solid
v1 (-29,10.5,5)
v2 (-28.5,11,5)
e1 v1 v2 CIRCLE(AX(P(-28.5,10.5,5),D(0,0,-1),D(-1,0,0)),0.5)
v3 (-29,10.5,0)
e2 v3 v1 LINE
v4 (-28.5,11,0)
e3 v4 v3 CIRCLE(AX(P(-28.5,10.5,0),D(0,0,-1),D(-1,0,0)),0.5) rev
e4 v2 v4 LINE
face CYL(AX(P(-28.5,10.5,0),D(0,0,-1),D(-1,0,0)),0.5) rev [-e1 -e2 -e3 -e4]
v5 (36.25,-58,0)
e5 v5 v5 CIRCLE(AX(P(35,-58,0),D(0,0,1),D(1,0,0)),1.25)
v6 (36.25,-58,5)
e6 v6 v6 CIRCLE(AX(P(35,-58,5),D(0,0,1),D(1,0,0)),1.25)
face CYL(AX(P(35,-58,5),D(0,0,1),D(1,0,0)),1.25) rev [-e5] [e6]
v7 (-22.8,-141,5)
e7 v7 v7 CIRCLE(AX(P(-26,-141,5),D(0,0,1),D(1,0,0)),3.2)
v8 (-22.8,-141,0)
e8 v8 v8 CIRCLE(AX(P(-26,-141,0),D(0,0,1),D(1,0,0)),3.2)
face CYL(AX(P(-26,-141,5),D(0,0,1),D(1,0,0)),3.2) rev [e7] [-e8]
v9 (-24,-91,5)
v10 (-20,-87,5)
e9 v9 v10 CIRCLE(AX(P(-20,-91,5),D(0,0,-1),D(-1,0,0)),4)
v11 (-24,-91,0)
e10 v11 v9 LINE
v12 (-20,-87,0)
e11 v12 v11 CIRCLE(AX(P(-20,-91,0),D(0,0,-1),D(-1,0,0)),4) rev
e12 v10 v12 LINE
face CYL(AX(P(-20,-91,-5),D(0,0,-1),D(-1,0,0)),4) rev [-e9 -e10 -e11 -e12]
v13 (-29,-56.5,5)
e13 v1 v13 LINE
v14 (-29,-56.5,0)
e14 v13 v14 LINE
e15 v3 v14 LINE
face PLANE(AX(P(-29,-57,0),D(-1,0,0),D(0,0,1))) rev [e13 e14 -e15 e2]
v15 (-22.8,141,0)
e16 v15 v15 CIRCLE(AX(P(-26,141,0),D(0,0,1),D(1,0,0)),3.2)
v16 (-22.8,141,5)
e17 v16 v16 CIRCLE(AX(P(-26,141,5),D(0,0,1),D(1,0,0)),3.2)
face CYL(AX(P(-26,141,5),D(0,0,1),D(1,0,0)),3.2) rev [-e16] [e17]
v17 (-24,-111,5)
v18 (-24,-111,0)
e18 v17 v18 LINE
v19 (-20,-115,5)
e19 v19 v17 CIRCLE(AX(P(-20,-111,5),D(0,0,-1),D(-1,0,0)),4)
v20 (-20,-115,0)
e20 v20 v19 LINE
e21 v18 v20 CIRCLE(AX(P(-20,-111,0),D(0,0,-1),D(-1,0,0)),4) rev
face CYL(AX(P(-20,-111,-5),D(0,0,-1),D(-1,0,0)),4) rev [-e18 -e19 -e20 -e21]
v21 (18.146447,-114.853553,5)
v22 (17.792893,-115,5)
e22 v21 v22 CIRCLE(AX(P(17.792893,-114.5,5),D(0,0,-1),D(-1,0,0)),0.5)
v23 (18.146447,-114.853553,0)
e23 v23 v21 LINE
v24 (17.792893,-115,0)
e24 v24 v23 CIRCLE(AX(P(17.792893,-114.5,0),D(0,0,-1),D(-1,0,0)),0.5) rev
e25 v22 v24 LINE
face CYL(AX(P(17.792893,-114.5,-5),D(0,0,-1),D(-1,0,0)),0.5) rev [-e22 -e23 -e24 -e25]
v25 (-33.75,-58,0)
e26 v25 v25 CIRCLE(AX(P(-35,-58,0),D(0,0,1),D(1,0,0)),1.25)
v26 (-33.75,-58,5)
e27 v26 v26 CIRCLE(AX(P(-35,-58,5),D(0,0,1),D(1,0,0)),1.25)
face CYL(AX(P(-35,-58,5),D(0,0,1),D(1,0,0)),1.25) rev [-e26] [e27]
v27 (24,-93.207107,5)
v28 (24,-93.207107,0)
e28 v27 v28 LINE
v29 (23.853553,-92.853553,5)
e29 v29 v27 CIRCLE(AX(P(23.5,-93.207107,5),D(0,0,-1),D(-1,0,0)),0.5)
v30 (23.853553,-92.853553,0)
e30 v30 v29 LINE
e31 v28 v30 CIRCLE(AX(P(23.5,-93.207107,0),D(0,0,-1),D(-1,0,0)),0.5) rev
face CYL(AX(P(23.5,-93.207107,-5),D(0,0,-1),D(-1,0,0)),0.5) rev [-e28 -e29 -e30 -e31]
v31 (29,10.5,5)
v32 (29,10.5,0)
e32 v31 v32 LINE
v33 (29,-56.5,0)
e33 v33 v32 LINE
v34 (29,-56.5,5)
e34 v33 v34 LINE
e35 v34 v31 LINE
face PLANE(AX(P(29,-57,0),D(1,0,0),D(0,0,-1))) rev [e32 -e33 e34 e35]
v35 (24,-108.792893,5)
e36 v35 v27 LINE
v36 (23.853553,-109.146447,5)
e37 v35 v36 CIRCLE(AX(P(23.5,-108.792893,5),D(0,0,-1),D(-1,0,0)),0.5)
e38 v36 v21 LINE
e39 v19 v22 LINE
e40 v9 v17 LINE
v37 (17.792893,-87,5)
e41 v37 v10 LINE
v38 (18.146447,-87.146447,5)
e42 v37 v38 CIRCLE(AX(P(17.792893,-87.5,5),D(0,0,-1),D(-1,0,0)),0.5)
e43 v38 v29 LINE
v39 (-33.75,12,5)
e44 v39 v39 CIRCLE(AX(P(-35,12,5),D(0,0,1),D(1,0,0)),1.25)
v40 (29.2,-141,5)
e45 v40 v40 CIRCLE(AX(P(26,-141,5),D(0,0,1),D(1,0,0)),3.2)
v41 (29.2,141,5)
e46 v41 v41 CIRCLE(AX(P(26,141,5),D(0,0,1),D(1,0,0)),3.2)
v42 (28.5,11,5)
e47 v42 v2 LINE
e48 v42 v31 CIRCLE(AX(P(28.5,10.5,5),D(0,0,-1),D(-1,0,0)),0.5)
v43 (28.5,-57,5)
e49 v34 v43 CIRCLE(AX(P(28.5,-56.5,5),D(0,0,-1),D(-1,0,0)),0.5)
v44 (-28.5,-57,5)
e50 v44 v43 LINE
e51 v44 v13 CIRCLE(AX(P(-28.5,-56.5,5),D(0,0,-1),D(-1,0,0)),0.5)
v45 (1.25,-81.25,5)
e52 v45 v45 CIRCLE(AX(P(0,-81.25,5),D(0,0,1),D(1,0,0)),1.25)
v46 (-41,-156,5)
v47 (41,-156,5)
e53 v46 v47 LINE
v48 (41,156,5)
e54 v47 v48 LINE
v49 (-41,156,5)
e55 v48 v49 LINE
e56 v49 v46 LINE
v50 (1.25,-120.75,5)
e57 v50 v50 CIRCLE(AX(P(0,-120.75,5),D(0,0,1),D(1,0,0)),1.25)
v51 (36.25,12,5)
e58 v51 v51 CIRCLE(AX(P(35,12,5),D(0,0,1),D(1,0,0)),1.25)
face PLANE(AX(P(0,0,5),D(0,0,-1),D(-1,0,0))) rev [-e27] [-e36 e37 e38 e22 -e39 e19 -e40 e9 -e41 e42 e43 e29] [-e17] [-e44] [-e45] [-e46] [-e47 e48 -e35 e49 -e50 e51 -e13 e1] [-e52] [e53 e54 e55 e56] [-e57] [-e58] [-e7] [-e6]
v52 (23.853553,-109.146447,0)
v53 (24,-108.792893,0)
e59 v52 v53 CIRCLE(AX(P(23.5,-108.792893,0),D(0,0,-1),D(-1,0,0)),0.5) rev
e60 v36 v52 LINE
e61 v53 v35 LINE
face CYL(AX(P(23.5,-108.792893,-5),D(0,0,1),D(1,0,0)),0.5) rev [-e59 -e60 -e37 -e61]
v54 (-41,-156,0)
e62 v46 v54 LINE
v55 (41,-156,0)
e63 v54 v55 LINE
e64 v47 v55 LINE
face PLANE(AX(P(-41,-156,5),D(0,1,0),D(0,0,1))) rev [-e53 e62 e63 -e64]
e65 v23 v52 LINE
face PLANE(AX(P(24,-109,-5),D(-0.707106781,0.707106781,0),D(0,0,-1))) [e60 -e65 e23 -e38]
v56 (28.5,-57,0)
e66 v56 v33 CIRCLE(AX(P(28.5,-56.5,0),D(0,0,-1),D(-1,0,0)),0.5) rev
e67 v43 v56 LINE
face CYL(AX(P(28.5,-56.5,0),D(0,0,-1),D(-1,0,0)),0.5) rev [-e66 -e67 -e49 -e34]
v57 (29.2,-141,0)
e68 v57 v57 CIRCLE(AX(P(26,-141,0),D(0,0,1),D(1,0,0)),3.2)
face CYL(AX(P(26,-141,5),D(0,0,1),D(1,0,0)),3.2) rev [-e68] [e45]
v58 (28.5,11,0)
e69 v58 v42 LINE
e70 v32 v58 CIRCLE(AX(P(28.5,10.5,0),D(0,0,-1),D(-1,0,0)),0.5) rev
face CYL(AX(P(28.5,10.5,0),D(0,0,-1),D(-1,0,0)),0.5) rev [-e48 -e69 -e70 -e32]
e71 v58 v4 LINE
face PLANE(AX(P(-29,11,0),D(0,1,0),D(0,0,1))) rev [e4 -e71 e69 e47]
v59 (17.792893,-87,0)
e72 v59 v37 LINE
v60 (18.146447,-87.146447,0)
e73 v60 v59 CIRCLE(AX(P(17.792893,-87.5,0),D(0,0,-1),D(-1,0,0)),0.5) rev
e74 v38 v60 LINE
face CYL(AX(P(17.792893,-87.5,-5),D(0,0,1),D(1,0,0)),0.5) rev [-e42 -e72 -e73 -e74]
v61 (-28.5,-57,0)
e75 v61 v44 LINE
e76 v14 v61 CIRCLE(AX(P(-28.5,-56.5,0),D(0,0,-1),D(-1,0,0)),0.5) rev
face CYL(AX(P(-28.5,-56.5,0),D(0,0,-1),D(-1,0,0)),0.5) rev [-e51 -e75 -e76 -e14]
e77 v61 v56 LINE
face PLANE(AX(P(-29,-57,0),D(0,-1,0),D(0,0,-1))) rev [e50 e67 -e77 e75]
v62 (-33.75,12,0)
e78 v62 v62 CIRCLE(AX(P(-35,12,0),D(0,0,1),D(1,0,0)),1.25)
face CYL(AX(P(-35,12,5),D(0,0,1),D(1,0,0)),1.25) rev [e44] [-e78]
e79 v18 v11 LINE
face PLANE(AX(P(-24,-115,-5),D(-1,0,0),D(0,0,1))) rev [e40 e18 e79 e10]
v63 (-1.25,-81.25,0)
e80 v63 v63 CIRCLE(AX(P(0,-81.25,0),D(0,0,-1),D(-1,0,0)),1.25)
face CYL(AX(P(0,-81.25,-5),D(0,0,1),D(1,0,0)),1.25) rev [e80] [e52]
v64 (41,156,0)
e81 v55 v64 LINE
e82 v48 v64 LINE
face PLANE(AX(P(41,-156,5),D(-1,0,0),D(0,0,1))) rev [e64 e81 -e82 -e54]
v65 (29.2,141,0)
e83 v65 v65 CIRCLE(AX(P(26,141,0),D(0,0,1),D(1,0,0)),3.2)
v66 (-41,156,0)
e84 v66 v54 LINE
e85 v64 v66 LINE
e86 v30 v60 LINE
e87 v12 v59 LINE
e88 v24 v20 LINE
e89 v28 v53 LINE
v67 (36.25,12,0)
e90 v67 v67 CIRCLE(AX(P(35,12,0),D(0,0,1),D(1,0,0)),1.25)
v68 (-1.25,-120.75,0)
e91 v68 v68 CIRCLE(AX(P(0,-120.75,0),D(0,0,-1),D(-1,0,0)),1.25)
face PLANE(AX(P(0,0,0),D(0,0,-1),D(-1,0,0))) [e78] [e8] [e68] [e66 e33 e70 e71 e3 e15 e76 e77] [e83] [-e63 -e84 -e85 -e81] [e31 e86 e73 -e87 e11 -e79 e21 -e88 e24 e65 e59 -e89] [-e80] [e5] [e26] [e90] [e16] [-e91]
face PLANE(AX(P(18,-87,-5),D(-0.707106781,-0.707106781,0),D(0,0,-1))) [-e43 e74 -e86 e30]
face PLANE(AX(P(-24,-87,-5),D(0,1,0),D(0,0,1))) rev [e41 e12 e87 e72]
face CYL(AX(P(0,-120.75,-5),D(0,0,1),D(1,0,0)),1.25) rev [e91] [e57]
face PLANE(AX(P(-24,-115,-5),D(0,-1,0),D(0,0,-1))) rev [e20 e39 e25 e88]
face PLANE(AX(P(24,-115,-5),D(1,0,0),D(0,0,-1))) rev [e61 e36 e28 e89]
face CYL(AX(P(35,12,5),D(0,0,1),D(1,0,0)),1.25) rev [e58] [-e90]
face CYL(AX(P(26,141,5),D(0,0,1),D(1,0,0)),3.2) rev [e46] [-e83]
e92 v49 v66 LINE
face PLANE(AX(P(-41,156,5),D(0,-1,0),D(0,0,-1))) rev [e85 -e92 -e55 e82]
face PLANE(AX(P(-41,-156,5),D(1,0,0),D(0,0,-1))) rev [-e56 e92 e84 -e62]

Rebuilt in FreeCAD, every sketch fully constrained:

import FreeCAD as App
import Part
import Sketcher

V = App.Vector


def edges_at(feature, points):
    """Names of the edges that pass closest to the given points."""
    edges = feature.Shape.Edges
    near = lambda p: min(range(len(edges)), key=lambda i: edges[i].distToShape(Part.Vertex(*p))[0])
    return sorted({f"Edge{near(p) + 1}" for p in points})


def add_polygon(sketch, points):
    """Adds a closed chain of lines whose ends are joined by coincident constraints."""
    first, n = sketch.GeometryCount, len(points)
    for a, b in zip(points, points[1:] + points[:1]):
        sketch.addGeometry(Part.LineSegment(App.Vector(*a, 0), App.Vector(*b, 0)), False)
    for i in range(n):
        sketch.addConstraint(Sketcher.Constraint("Coincident", first + i, 2, first + (i + 1) % n, 1))

doc = App.newDocument("Part")
body = doc.addObject("PartDesign::Body", "Body")

sketch1 = body.newObject("Sketcher::SketchObject", "Sketch")
sketch1.AttachmentSupport = (doc.getObject("XY_Plane"), [""])
sketch1.MapMode = "FlatFace"
add_polygon(sketch1, [(-41, 156), (-41, -156), (41, -156), (41, 156)])
sketch1.addConstraint(Sketcher.Constraint("Vertical", 0))
sketch1.addConstraint(Sketcher.Constraint("Horizontal", 1))
sketch1.addConstraint(Sketcher.Constraint("Vertical", 2))
sketch1.addConstraint(Sketcher.Constraint("Horizontal", 3))
sketch1.addConstraint(Sketcher.Constraint("Symmetric", 0, 2, 2, 2, -1, 1))
sketch1.addConstraint(Sketcher.Constraint("DistanceX", 1, 1, 1, 2, 82.0))
sketch1.addConstraint(Sketcher.Constraint("DistanceY", 0, 2, 0, 1, 312.0))
pad1 = body.newObject("PartDesign::Pad", "Pad")
pad1.Profile = sketch1
pad1.Length = 5

sketch2 = body.newObject("Sketcher::SketchObject", "Sketch001")
sketch2.AttachmentSupport = (doc.getObject("XY_Plane"), [""])
sketch2.MapMode = "FlatFace"
sketch2.AttachmentOffset = App.Placement(V(0, 0, 5), App.Rotation())
sketch2.addGeometry(Part.Circle(V(0, -81.2, 0), V(0, 0, 1), 1.2), False)
sketch2.addGeometry(Part.Circle(V(0, -120.8, 0), V(0, 0, 1), 1.2), False)
add_polygon(sketch2, [(-24, -87), (-24, -115), (24, -115), (24, -87)])
sketch2.addConstraint(Sketcher.Constraint("Vertical", 2))
sketch2.addConstraint(Sketcher.Constraint("Horizontal", 3))
sketch2.addConstraint(Sketcher.Constraint("Vertical", 4))
sketch2.addConstraint(Sketcher.Constraint("Horizontal", 5))
sketch2.addConstraint(Sketcher.Constraint("Equal", 0, 1))
sketch2.addConstraint(Sketcher.Constraint("PointOnObject", 0, 3, -2))
sketch2.addConstraint(Sketcher.Constraint("PointOnObject", 1, 3, -2))
sketch2.addConstraint(Sketcher.Constraint("Diameter", 0, 2.5))
sketch2.addConstraint(Sketcher.Constraint("DistanceX", 3, 1, 3, 2, 48.0))
sketch2.addConstraint(Sketcher.Constraint("DistanceY", 2, 2, 2, 1, 28.0))
sketch2.addConstraint(Sketcher.Constraint("DistanceX", 2, 2, -1, 1, 24.0))
sketch2.addConstraint(Sketcher.Constraint("DistanceY", 2, 2, -1, 1, 115.0))
sketch2.addConstraint(Sketcher.Constraint("DistanceY", 1, 3, 0, 3, 39.5))
sketch2.addConstraint(Sketcher.Constraint("DistanceY", 0, 3, -1, 1, 81.25))
pocket1 = body.newObject("PartDesign::Pocket", "Pocket")
pocket1.Profile = sketch2
pocket1.Length = 10
doc.recompute()

chamfer = body.newObject("PartDesign::Chamfer", "Chamfer")
chamfer.Base = (pocket1, edges_at(pocket1, [(24, -87, 2.5), (24, -115, 2.5)]))
chamfer.Size = 6
doc.recompute()

fillet = body.newObject("PartDesign::Fillet", "Fillet")
fillet.Base = (chamfer, edges_at(chamfer, [(-24, -115, 2.5), (-24, -87, 2.5)]))
fillet.Radius = 4

sketch3 = body.newObject("Sketcher::SketchObject", "Sketch002")
sketch3.AttachmentSupport = (doc.getObject("XY_Plane"), [""])
sketch3.MapMode = "FlatFace"
sketch3.AttachmentOffset = App.Placement(V(0, 0, 5), App.Rotation())
add_polygon(sketch3, [(-29, 11), (-29, -57), (29, -57), (29, 11)])
sketch3.addConstraint(Sketcher.Constraint("Vertical", 0))
sketch3.addConstraint(Sketcher.Constraint("Horizontal", 1))
sketch3.addConstraint(Sketcher.Constraint("Vertical", 2))
sketch3.addConstraint(Sketcher.Constraint("Horizontal", 3))
sketch3.addConstraint(Sketcher.Constraint("DistanceX", 1, 1, 1, 2, 58.0))
sketch3.addConstraint(Sketcher.Constraint("DistanceY", 0, 2, 0, 1, 68.0))
sketch3.addConstraint(Sketcher.Constraint("DistanceX", 0, 2, -1, 1, 29.0))
sketch3.addConstraint(Sketcher.Constraint("DistanceY", 0, 2, -1, 1, 57.0))
pocket2 = body.newObject("PartDesign::Pocket", "Pocket001")
pocket2.Profile = sketch3
pocket2.Type = "ThroughAll"

sketch4 = body.newObject("Sketcher::SketchObject", "Sketch003")
sketch4.AttachmentSupport = (doc.getObject("XY_Plane"), [""])
sketch4.MapMode = "FlatFace"
sketch4.AttachmentOffset = App.Placement(V(0, 0, 5), App.Rotation())
sketch4.addGeometry(Part.Circle(V(-35, 12, 0), V(0, 0, 1), 1.2), False)
sketch4.addGeometry(Part.Circle(V(35, 12, 0), V(0, 0, 1), 1.2), False)
sketch4.addGeometry(Part.Circle(V(35, -58, 0), V(0, 0, 1), 1.2), False)
sketch4.addGeometry(Part.Circle(V(-35, -58, 0), V(0, 0, 1), 1.2), False)
sketch4.addConstraint(Sketcher.Constraint("Equal", 0, 1))
sketch4.addConstraint(Sketcher.Constraint("Equal", 1, 2))
sketch4.addConstraint(Sketcher.Constraint("Equal", 2, 3))
sketch4.addConstraint(Sketcher.Constraint("Symmetric", 0, 3, 1, 3, -2))
sketch4.addConstraint(Sketcher.Constraint("Symmetric", 2, 3, 3, 3, -2))
sketch4.addConstraint(Sketcher.Constraint("Vertical", 1, 3, 2, 3))
sketch4.addConstraint(Sketcher.Constraint("Diameter", 0, 2.5))
sketch4.addConstraint(Sketcher.Constraint("DistanceX", 0, 3, -1, 1, 35.0))
sketch4.addConstraint(Sketcher.Constraint("DistanceY", -1, 1, 0, 3, 12.0))
sketch4.addConstraint(Sketcher.Constraint("DistanceY", 2, 3, -1, 1, 58.0))
doc.recompute()
hole = body.newObject("PartDesign::Hole", "Hole")
hole.Profile = sketch4
hole.ThreadType = "None"
hole.Diameter = 2.5
hole.DepthType = "ThroughAll"
doc.recompute()

fillet2 = body.newObject("PartDesign::Fillet", "Fillet001")
fillet2.Base = (hole, edges_at(hole, [
    (24, -93, 2.5),
    (24, -109, 2.5),
    (18, -115, 2.5),
    (18, -87, 2.5),
    (29, 11, 2.5),
    (29, -57, 2.5),
    (-29, -57, 2.5),
    (-29, 11, 2.5),
]))
fillet2.Radius = 0.5

sketch5 = body.newObject("Sketcher::SketchObject", "Sketch004")
sketch5.AttachmentSupport = (doc.getObject("XY_Plane"), [""])
sketch5.MapMode = "FlatFace"
sketch5.AttachmentOffset = App.Placement(V(0, 0, 5), App.Rotation())
sketch5.addGeometry(Part.Circle(V(-26, 141, 0), V(0, 0, 1), 3.2), False)
sketch5.addGeometry(Part.Circle(V(26, 141, 0), V(0, 0, 1), 3.2), False)
sketch5.addGeometry(Part.Circle(V(-26, -141, 0), V(0, 0, 1), 3.2), False)
sketch5.addGeometry(Part.Circle(V(26, -141, 0), V(0, 0, 1), 3.2), False)
sketch5.addConstraint(Sketcher.Constraint("Equal", 0, 1))
sketch5.addConstraint(Sketcher.Constraint("Equal", 1, 2))
sketch5.addConstraint(Sketcher.Constraint("Equal", 2, 3))
sketch5.addConstraint(Sketcher.Constraint("Symmetric", 1, 3, 2, 3, -1, 1))
sketch5.addConstraint(Sketcher.Constraint("Symmetric", 0, 3, 3, 3, -1, 1))
sketch5.addConstraint(Sketcher.Constraint("Symmetric", 0, 3, 1, 3, -2))
sketch5.addConstraint(Sketcher.Constraint("Diameter", 0, 6.4))
sketch5.addConstraint(Sketcher.Constraint("DistanceX", 0, 3, -1, 1, 26.0))
sketch5.addConstraint(Sketcher.Constraint("DistanceY", -1, 1, 0, 3, 141.0))
doc.recompute()
hole2 = body.newObject("PartDesign::Hole", "Hole001")
hole2.Profile = sketch5
hole2.ThreadType = "None"
hole2.Diameter = 6.4
hole2.DepthType = "Dimension"
hole2.Depth = 5
hole2.DrillPoint = "Angled"
hole2.DrillPointAngle = 118

doc.recompute()
